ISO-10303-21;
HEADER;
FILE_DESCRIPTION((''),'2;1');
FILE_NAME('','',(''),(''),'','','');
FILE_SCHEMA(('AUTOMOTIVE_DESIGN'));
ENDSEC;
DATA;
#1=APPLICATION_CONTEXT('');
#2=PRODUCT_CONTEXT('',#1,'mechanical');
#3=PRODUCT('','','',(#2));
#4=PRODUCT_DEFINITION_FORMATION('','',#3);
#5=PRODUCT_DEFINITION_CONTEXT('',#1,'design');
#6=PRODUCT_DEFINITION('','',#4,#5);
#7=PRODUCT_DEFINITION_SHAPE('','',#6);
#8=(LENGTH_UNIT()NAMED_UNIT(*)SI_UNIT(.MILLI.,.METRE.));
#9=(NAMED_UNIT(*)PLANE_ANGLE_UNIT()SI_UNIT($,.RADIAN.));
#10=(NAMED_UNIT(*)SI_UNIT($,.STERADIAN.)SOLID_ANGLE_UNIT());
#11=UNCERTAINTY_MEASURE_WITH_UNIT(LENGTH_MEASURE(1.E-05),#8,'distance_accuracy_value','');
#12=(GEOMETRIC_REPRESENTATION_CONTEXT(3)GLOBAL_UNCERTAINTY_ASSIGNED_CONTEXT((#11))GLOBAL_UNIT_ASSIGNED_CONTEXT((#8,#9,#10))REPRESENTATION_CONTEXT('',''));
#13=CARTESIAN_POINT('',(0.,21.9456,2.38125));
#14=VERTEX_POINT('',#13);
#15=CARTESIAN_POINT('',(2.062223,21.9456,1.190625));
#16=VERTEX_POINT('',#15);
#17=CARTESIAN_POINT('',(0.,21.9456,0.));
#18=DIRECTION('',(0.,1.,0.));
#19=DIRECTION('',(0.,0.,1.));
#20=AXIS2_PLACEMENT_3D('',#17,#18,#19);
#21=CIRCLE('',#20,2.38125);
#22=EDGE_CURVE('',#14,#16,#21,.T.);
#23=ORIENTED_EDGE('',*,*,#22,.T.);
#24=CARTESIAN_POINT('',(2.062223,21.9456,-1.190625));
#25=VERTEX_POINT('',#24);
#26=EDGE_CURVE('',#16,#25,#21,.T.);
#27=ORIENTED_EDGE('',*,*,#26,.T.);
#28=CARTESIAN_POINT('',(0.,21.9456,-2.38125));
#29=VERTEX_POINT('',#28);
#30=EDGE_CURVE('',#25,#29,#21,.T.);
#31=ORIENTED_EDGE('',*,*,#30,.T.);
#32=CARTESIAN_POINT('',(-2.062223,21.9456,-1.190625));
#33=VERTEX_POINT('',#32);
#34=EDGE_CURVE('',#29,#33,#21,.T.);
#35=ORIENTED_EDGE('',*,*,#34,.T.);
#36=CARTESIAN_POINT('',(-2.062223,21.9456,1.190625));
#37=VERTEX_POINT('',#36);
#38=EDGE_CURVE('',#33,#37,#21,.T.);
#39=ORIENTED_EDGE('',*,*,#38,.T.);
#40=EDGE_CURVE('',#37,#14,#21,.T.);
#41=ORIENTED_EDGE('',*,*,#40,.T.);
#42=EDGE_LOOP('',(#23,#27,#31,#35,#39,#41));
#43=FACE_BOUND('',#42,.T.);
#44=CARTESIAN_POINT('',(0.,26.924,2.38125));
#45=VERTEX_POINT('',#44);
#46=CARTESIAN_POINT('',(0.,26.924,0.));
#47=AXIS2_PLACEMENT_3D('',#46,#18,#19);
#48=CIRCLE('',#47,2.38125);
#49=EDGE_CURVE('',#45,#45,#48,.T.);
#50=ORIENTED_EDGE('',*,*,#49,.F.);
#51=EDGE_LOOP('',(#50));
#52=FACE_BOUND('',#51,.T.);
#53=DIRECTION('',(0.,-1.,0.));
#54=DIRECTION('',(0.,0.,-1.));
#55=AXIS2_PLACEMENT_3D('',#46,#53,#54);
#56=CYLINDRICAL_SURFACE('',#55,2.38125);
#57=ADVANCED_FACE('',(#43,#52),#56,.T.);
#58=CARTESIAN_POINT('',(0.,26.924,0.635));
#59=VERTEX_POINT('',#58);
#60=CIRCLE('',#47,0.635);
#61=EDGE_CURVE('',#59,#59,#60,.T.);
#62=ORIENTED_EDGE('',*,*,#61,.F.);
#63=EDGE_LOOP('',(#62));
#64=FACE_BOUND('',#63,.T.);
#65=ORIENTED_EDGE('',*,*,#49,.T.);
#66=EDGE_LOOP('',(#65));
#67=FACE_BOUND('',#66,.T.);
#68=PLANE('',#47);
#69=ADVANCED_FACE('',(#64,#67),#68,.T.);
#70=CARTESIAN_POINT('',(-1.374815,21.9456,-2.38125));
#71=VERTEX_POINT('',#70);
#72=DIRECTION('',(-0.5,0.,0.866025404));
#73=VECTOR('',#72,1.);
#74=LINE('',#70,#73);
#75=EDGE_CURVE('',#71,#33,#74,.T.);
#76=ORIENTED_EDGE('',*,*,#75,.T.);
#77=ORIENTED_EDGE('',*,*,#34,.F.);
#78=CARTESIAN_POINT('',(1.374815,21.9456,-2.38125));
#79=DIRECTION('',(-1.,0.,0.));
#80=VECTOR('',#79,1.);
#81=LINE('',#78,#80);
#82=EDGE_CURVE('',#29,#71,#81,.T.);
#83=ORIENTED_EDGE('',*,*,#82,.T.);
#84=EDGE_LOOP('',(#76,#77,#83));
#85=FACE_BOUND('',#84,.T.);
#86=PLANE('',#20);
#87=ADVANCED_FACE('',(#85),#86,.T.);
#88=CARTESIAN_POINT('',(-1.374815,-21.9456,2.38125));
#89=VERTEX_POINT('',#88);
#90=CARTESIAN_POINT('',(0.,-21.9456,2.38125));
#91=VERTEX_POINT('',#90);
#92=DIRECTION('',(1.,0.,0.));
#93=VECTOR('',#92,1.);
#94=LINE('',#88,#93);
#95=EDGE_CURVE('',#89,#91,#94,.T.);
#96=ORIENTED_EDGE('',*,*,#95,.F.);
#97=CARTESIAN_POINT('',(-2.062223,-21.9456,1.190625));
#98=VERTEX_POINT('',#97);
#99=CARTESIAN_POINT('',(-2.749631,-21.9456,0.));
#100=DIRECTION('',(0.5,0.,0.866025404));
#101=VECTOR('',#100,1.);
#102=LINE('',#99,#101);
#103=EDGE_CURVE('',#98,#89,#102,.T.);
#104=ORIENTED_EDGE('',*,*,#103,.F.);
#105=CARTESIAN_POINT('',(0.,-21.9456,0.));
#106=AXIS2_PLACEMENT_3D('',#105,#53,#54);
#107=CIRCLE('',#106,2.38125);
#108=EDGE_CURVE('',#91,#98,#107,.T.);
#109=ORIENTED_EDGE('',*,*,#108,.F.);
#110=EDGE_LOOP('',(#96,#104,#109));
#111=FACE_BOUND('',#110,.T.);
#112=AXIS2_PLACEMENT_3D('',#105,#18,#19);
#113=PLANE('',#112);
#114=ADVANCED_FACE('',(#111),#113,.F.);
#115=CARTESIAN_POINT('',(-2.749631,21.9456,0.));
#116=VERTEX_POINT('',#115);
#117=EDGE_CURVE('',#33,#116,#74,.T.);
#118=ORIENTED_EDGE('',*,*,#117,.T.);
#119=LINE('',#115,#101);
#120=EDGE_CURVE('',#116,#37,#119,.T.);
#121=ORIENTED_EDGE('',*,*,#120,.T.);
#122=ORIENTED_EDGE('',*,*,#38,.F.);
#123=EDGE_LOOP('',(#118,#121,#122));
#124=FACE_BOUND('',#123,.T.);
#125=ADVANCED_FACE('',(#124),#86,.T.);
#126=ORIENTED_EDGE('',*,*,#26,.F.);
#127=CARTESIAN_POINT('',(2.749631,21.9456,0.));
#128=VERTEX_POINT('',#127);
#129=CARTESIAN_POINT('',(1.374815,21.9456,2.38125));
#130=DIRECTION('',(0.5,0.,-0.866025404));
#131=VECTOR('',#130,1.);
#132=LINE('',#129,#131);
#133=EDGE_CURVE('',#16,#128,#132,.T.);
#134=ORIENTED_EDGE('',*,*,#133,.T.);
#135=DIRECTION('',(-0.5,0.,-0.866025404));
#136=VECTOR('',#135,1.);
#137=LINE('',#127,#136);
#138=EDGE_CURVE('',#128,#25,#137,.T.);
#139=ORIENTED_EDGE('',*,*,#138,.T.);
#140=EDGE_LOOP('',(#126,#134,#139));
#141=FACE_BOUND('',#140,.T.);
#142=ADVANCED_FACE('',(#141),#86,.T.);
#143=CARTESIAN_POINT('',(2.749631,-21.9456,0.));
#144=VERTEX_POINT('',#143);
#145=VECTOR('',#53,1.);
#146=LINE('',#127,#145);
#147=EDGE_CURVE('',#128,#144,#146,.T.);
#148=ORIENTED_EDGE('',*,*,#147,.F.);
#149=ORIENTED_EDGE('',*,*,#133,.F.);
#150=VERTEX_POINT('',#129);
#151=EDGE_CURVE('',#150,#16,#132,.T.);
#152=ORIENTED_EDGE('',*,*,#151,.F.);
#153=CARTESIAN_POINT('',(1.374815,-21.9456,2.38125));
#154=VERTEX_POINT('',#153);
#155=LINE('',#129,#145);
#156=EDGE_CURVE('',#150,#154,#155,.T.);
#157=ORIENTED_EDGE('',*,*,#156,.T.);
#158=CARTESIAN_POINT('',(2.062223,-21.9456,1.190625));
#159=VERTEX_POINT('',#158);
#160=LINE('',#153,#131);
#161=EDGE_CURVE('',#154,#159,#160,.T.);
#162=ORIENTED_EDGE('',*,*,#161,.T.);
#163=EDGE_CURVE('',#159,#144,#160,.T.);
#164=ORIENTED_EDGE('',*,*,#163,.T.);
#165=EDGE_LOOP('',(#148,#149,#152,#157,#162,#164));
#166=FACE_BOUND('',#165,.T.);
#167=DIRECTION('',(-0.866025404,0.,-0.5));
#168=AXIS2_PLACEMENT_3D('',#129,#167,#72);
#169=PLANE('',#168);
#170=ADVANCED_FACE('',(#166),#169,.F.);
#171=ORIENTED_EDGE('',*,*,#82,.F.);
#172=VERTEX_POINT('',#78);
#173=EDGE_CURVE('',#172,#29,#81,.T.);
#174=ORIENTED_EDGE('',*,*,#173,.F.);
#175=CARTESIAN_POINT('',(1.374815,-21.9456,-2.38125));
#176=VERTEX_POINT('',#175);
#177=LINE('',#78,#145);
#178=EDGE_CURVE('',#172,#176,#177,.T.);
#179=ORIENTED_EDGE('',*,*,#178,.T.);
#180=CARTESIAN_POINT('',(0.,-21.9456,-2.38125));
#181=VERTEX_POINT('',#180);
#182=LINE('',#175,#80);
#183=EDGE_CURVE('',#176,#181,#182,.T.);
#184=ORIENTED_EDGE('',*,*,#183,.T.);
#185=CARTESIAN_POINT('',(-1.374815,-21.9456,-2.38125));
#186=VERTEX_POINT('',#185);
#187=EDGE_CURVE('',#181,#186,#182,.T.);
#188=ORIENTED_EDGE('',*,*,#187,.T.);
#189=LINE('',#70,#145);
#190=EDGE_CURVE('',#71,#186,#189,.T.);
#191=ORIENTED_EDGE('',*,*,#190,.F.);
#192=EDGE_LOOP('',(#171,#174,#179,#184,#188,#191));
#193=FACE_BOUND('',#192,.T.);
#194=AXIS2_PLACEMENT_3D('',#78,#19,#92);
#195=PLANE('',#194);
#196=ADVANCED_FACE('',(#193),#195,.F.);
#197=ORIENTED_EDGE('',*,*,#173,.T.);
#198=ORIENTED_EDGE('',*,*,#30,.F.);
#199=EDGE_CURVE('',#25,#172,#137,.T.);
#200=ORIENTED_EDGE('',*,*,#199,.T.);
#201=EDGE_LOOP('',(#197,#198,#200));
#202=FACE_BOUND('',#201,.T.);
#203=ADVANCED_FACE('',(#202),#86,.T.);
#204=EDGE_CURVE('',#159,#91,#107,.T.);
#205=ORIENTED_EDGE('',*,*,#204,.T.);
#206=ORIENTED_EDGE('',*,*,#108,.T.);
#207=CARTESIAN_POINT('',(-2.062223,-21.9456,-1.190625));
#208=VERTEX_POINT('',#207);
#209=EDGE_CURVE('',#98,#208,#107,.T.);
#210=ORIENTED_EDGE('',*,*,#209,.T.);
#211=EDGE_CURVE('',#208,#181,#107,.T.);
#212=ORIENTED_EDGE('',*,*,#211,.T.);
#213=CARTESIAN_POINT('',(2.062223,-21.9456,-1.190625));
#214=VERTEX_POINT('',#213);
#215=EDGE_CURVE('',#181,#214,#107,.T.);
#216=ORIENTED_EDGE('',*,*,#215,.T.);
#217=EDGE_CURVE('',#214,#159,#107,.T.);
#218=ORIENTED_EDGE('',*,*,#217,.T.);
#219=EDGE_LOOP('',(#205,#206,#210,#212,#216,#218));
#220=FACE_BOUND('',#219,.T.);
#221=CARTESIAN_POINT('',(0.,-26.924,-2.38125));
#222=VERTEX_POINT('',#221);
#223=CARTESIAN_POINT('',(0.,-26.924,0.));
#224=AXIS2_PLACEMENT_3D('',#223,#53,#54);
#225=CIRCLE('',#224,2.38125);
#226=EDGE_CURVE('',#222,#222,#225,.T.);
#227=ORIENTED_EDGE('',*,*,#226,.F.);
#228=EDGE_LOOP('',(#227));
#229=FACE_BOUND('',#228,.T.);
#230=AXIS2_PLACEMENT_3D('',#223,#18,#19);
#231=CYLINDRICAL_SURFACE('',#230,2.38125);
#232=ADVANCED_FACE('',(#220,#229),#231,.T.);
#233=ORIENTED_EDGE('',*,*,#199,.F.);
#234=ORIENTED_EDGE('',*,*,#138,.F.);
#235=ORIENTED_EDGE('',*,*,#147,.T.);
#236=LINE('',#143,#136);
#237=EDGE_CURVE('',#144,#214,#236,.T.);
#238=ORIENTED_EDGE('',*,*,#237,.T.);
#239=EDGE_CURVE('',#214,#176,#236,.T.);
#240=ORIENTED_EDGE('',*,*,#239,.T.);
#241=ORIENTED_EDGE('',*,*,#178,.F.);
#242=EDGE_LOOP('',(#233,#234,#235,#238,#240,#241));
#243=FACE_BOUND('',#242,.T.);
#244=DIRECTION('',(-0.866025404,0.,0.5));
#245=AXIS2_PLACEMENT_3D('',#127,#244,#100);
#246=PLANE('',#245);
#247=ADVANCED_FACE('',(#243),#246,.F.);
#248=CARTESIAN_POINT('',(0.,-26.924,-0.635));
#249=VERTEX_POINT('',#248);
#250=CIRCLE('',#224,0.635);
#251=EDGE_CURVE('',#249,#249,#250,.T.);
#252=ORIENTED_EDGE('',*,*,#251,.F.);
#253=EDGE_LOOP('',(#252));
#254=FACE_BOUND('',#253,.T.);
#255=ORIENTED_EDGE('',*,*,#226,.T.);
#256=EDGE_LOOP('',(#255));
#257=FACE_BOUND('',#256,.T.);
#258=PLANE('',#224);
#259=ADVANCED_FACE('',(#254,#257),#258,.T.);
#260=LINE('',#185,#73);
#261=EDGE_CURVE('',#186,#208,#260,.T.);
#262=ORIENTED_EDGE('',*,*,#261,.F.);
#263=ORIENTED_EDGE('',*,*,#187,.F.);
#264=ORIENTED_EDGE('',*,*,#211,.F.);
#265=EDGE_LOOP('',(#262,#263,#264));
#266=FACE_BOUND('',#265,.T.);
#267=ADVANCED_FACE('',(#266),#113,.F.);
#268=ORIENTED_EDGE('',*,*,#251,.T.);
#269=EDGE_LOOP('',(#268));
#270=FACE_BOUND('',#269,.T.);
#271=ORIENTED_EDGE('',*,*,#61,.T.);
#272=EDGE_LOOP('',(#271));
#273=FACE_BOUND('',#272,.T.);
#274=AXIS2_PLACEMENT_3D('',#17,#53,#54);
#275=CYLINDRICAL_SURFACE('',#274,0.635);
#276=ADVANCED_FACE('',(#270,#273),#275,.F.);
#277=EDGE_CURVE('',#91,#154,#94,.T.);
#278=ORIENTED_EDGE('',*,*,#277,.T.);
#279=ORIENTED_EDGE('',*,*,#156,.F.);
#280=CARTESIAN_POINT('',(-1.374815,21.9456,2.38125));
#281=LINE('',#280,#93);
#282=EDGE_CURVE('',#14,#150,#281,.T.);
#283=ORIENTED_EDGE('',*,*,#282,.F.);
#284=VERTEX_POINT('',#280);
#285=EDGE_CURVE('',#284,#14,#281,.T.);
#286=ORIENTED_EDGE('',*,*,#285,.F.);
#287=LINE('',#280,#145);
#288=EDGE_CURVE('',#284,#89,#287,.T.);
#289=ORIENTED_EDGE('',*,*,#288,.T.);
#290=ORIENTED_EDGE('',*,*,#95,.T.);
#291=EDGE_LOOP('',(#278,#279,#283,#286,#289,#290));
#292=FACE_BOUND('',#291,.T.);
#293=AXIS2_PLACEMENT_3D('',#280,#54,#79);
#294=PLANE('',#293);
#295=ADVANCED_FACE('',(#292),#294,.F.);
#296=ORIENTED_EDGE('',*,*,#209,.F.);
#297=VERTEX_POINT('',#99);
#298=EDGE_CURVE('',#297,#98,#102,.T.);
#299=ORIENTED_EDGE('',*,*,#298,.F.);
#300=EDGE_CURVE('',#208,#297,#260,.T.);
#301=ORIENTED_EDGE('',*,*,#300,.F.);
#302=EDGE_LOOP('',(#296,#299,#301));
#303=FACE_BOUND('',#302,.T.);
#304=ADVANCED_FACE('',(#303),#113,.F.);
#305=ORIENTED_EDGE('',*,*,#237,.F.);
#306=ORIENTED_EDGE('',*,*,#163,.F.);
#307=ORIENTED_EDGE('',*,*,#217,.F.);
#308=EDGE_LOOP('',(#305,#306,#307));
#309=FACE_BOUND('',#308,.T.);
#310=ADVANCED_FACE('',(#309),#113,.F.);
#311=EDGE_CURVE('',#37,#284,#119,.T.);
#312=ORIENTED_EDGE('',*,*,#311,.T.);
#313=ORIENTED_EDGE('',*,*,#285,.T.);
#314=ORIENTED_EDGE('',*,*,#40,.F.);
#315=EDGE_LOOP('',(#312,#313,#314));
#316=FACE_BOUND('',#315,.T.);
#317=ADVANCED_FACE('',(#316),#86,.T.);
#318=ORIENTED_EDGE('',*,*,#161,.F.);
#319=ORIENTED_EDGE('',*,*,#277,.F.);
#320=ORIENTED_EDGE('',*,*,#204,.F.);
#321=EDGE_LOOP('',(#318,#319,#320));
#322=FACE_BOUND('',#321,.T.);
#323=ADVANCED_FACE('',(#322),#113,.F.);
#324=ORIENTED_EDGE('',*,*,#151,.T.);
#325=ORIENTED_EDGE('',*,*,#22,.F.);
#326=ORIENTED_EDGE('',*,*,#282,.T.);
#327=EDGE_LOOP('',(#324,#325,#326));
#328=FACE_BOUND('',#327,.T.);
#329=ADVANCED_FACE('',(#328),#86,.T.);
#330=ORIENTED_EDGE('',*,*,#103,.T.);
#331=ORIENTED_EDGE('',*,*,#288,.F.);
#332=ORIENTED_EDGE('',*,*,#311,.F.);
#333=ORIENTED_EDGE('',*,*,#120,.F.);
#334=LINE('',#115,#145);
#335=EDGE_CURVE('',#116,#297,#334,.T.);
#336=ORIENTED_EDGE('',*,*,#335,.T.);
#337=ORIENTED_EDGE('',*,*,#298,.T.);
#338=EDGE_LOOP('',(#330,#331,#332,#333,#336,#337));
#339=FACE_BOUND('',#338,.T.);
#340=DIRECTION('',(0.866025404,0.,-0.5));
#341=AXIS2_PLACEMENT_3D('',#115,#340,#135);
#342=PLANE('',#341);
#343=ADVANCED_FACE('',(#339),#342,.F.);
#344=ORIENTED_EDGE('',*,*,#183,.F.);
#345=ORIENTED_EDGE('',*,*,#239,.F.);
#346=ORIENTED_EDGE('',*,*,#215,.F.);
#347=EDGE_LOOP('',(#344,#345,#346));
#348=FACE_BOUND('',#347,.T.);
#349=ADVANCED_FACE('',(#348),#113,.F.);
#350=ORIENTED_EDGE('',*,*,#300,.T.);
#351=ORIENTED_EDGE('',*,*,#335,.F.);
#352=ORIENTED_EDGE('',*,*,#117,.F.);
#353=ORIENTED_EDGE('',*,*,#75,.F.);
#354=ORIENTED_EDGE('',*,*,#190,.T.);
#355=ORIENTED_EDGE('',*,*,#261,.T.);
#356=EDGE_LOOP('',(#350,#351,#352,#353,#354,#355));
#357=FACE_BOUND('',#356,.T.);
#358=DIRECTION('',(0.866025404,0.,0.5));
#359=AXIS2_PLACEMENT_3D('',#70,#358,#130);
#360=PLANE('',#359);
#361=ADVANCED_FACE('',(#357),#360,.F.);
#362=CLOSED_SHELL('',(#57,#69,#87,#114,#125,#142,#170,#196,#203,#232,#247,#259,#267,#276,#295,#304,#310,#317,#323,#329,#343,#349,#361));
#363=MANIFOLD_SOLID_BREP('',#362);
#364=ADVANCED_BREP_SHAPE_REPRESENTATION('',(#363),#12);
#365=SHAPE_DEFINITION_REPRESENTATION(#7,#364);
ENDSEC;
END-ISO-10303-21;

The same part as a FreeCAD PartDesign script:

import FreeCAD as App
import Part
import Sketcher

V = App.Vector
Q = App.Units.Quantity


def add_polygon(sketch, points):
    """Adds a closed chain of lines whose ends are joined by coincident constraints."""
    first, n = sketch.GeometryCount, len(points)
    for a, b in zip(points, points[1:] + points[:1]):
        sketch.addGeometry(Part.LineSegment(App.Vector(*a, 0), App.Vector(*b, 0)), False)
    for i in range(n):
        sketch.addConstraint(Sketcher.Constraint("Coincident", first + i, 2, first + (i + 1) % n, 1))

doc = App.newDocument("Part")
params = doc.addObject("Spreadsheet::Sheet", "Params")
for row, (alias, value) in enumerate([
    ("sketch1_diameter", "0.05 in"),
    ("pad1_length", "1.728 in"),
    ("sketch2_diameter", "0.05 in"),
    ("sketch2_diameter2", "0.1875 in"),
    ("pad2_length", "0.196 in"),
    ("sketch3_diameter", "0.05 in"),
    ("sketch3_diameter2", "0.1875 in"),
    ("pad3_length", "0.196 in"),
], start=1):
    params.set(f"A{row}", alias)
    params.set(f"B{row}", "=" + value)
    params.setAlias(f"B{row}", alias)

body = doc.addObject("PartDesign::Body", "Body")

sketch1 = body.newObject("Sketcher::SketchObject", "Sketch")
sketch1.AttachmentSupport = (doc.getObject("XZ_Plane"), [""])
sketch1.MapMode = "FlatFace"
add_polygon(sketch1, [(1.4, 2.4), (2.7, 0), (1.4, -2.4), (-1.4, -2.4), (-2.7, 0), (-1.4, 2.4)])
sketch1.addGeometry(Part.Circle(V(0, 0, 0), V(0, 0, 1), 0.6), False)
sketch1.addConstraint([
    Sketcher.Constraint("Horizontal", 2),
    Sketcher.Constraint("Horizontal", 5),
    Sketcher.Constraint("Coincident", 6, 3, -1, 1),
    Sketcher.Constraint("Symmetric", 0, 2, 3, 2, -1, 1),
    Sketcher.Constraint("Symmetric", 1, 2, 4, 2, -1, 1),
    Sketcher.Constraint("PointOnObject", 0, 2, -1),
    Sketcher.Constraint("Parallel", 0, 3),
    Sketcher.Constraint("Vertical", 2, 2, 4, 2),
    Sketcher.Constraint("Diameter", 6, Q("0.05 in")),
    Sketcher.Constraint("Angle", 0, Q("-60 deg")),
    Sketcher.Constraint("DistanceY", 1, 2, -1, 1, Q("0.09375 in")),
    Sketcher.Constraint("DistanceX", 2, 2, 2, 1, 2.749631),
])
sketch1.setExpression("Constraints[14]", "Params.sketch1_diameter")
pad1 = body.newObject("PartDesign::Pad", "Pad")
pad1.Profile = sketch1
pad1.setExpression("Length", "Params.pad1_length")
pad1.Midplane = True

sketch2 = body.newObject("Sketcher::SketchObject", "Sketch001")
sketch2.AttachmentSupport = (doc.getObject("XZ_Plane"), [""])
sketch2.MapMode = "FlatFace"
sketch2.AttachmentOffset = App.Placement(V(0, 0, -0.864 * 25.4), App.Rotation())
sketch2.addGeometry([
    Part.Circle(V(0, 0, 0), V(0, 0, 1), 2.4),
    Part.Circle(V(0, 0, 0), V(0, 0, 1), 0.6),
], False)
sketch2.addConstraint([
    Sketcher.Constraint("Coincident", 0, 3, -1, 1),
    Sketcher.Constraint("Coincident", 1, 3, -1, 1),
    Sketcher.Constraint("Diameter", 1, Q("0.05 in")),
    Sketcher.Constraint("Diameter", 0, Q("0.1875 in")),
])
sketch2.setExpression("Constraints[2]", "Params.sketch2_diameter")
sketch2.setExpression("Constraints[3]", "Params.sketch2_diameter2")
pad2 = body.newObject("PartDesign::Pad", "Pad001")
pad2.Profile = sketch2
pad2.setExpression("Length", "Params.pad2_length")
pad2.Reversed = True

sketch3 = body.newObject("Sketcher::SketchObject", "Sketch002")
sketch3.AttachmentSupport = (doc.getObject("XZ_Plane"), [""])
sketch3.MapMode = "FlatFace"
sketch3.AttachmentOffset = App.Placement(V(0, 0, 0.864 * 25.4), App.Rotation())
sketch3.addGeometry([
    Part.Circle(V(0, 0, 0), V(0, 0, 1), 2.4),
    Part.Circle(V(0, 0, 0), V(0, 0, 1), 0.6),
], False)
sketch3.addConstraint([
    Sketcher.Constraint("Coincident", 0, 3, -1, 1),
    Sketcher.Constraint("Coincident", 1, 3, -1, 1),
    Sketcher.Constraint("Diameter", 1, Q("0.05 in")),
    Sketcher.Constraint("Diameter", 0, Q("0.1875 in")),
])
sketch3.setExpression("Constraints[2]", "Params.sketch3_diameter")
sketch3.setExpression("Constraints[3]", "Params.sketch3_diameter2")
pad3 = body.newObject("PartDesign::Pad", "Pad002")
pad3.Profile = sketch3
pad3.setExpression("Length", "Params.pad3_length")

doc.recompute()
